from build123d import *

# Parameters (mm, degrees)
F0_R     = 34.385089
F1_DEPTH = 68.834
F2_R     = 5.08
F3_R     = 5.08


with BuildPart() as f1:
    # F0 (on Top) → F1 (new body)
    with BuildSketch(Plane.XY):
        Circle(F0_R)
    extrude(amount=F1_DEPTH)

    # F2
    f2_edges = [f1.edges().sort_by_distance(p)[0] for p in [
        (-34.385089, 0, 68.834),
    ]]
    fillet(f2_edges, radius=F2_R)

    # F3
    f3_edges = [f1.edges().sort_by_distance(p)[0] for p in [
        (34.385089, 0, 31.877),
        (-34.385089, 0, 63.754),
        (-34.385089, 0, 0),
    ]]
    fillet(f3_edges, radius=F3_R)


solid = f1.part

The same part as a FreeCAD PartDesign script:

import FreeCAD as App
import Part
import Sketcher

V = App.Vector
Q = App.Units.Quantity


def edges_at(feature, points):
    """Names of the edges that pass closest to the given points."""
    edges = feature.Shape.Edges
    near = lambda p: min(range(len(edges)), key=lambda i: edges[i].distToShape(Part.Vertex(*p))[0])
    return sorted({f"Edge{near(p) + 1}" for p in points})

doc = App.newDocument("Part")
body = doc.addObject("PartDesign::Body", "Body")

# Sketch on XY plane
sketch1 = body.newObject("Sketcher::SketchObject", "Sketch")
sketch1.AttachmentSupport = (doc.getObject("XY_Plane"), [""])
sketch1.MapMode = "FlatFace"
sketch1.addGeometry(Part.Circle(V(0, 0, 0), V(0, 0, 1), 34), False)
sketch1.addConstraint([
    Sketcher.Constraint("Coincident", 0, 3, -1, 1),
    Sketcher.Constraint("Diameter", 0, 68.770178),
])
pad1 = body.newObject("PartDesign::Pad", "Pad")
pad1.Profile = sketch1
pad1.Length = Q("2.71 in")
doc.recompute()

fillet = body.newObject("PartDesign::Fillet", "Fillet")
fillet.Base = (pad1, edges_at(pad1, [(-34.385, 0, 68.834)]))
fillet.Radius = Q("0.2 in")
doc.recompute()

fillet2 = body.newObject("PartDesign::Fillet", "Fillet001")
fillet2.Base = (fillet, edges_at(fillet, [(34.385, 0, 31.877), (-34.385, 0, 63.754), (-34.385, 0, 0)]))
fillet2.Radius = Q("0.2 in")

doc.recompute()
